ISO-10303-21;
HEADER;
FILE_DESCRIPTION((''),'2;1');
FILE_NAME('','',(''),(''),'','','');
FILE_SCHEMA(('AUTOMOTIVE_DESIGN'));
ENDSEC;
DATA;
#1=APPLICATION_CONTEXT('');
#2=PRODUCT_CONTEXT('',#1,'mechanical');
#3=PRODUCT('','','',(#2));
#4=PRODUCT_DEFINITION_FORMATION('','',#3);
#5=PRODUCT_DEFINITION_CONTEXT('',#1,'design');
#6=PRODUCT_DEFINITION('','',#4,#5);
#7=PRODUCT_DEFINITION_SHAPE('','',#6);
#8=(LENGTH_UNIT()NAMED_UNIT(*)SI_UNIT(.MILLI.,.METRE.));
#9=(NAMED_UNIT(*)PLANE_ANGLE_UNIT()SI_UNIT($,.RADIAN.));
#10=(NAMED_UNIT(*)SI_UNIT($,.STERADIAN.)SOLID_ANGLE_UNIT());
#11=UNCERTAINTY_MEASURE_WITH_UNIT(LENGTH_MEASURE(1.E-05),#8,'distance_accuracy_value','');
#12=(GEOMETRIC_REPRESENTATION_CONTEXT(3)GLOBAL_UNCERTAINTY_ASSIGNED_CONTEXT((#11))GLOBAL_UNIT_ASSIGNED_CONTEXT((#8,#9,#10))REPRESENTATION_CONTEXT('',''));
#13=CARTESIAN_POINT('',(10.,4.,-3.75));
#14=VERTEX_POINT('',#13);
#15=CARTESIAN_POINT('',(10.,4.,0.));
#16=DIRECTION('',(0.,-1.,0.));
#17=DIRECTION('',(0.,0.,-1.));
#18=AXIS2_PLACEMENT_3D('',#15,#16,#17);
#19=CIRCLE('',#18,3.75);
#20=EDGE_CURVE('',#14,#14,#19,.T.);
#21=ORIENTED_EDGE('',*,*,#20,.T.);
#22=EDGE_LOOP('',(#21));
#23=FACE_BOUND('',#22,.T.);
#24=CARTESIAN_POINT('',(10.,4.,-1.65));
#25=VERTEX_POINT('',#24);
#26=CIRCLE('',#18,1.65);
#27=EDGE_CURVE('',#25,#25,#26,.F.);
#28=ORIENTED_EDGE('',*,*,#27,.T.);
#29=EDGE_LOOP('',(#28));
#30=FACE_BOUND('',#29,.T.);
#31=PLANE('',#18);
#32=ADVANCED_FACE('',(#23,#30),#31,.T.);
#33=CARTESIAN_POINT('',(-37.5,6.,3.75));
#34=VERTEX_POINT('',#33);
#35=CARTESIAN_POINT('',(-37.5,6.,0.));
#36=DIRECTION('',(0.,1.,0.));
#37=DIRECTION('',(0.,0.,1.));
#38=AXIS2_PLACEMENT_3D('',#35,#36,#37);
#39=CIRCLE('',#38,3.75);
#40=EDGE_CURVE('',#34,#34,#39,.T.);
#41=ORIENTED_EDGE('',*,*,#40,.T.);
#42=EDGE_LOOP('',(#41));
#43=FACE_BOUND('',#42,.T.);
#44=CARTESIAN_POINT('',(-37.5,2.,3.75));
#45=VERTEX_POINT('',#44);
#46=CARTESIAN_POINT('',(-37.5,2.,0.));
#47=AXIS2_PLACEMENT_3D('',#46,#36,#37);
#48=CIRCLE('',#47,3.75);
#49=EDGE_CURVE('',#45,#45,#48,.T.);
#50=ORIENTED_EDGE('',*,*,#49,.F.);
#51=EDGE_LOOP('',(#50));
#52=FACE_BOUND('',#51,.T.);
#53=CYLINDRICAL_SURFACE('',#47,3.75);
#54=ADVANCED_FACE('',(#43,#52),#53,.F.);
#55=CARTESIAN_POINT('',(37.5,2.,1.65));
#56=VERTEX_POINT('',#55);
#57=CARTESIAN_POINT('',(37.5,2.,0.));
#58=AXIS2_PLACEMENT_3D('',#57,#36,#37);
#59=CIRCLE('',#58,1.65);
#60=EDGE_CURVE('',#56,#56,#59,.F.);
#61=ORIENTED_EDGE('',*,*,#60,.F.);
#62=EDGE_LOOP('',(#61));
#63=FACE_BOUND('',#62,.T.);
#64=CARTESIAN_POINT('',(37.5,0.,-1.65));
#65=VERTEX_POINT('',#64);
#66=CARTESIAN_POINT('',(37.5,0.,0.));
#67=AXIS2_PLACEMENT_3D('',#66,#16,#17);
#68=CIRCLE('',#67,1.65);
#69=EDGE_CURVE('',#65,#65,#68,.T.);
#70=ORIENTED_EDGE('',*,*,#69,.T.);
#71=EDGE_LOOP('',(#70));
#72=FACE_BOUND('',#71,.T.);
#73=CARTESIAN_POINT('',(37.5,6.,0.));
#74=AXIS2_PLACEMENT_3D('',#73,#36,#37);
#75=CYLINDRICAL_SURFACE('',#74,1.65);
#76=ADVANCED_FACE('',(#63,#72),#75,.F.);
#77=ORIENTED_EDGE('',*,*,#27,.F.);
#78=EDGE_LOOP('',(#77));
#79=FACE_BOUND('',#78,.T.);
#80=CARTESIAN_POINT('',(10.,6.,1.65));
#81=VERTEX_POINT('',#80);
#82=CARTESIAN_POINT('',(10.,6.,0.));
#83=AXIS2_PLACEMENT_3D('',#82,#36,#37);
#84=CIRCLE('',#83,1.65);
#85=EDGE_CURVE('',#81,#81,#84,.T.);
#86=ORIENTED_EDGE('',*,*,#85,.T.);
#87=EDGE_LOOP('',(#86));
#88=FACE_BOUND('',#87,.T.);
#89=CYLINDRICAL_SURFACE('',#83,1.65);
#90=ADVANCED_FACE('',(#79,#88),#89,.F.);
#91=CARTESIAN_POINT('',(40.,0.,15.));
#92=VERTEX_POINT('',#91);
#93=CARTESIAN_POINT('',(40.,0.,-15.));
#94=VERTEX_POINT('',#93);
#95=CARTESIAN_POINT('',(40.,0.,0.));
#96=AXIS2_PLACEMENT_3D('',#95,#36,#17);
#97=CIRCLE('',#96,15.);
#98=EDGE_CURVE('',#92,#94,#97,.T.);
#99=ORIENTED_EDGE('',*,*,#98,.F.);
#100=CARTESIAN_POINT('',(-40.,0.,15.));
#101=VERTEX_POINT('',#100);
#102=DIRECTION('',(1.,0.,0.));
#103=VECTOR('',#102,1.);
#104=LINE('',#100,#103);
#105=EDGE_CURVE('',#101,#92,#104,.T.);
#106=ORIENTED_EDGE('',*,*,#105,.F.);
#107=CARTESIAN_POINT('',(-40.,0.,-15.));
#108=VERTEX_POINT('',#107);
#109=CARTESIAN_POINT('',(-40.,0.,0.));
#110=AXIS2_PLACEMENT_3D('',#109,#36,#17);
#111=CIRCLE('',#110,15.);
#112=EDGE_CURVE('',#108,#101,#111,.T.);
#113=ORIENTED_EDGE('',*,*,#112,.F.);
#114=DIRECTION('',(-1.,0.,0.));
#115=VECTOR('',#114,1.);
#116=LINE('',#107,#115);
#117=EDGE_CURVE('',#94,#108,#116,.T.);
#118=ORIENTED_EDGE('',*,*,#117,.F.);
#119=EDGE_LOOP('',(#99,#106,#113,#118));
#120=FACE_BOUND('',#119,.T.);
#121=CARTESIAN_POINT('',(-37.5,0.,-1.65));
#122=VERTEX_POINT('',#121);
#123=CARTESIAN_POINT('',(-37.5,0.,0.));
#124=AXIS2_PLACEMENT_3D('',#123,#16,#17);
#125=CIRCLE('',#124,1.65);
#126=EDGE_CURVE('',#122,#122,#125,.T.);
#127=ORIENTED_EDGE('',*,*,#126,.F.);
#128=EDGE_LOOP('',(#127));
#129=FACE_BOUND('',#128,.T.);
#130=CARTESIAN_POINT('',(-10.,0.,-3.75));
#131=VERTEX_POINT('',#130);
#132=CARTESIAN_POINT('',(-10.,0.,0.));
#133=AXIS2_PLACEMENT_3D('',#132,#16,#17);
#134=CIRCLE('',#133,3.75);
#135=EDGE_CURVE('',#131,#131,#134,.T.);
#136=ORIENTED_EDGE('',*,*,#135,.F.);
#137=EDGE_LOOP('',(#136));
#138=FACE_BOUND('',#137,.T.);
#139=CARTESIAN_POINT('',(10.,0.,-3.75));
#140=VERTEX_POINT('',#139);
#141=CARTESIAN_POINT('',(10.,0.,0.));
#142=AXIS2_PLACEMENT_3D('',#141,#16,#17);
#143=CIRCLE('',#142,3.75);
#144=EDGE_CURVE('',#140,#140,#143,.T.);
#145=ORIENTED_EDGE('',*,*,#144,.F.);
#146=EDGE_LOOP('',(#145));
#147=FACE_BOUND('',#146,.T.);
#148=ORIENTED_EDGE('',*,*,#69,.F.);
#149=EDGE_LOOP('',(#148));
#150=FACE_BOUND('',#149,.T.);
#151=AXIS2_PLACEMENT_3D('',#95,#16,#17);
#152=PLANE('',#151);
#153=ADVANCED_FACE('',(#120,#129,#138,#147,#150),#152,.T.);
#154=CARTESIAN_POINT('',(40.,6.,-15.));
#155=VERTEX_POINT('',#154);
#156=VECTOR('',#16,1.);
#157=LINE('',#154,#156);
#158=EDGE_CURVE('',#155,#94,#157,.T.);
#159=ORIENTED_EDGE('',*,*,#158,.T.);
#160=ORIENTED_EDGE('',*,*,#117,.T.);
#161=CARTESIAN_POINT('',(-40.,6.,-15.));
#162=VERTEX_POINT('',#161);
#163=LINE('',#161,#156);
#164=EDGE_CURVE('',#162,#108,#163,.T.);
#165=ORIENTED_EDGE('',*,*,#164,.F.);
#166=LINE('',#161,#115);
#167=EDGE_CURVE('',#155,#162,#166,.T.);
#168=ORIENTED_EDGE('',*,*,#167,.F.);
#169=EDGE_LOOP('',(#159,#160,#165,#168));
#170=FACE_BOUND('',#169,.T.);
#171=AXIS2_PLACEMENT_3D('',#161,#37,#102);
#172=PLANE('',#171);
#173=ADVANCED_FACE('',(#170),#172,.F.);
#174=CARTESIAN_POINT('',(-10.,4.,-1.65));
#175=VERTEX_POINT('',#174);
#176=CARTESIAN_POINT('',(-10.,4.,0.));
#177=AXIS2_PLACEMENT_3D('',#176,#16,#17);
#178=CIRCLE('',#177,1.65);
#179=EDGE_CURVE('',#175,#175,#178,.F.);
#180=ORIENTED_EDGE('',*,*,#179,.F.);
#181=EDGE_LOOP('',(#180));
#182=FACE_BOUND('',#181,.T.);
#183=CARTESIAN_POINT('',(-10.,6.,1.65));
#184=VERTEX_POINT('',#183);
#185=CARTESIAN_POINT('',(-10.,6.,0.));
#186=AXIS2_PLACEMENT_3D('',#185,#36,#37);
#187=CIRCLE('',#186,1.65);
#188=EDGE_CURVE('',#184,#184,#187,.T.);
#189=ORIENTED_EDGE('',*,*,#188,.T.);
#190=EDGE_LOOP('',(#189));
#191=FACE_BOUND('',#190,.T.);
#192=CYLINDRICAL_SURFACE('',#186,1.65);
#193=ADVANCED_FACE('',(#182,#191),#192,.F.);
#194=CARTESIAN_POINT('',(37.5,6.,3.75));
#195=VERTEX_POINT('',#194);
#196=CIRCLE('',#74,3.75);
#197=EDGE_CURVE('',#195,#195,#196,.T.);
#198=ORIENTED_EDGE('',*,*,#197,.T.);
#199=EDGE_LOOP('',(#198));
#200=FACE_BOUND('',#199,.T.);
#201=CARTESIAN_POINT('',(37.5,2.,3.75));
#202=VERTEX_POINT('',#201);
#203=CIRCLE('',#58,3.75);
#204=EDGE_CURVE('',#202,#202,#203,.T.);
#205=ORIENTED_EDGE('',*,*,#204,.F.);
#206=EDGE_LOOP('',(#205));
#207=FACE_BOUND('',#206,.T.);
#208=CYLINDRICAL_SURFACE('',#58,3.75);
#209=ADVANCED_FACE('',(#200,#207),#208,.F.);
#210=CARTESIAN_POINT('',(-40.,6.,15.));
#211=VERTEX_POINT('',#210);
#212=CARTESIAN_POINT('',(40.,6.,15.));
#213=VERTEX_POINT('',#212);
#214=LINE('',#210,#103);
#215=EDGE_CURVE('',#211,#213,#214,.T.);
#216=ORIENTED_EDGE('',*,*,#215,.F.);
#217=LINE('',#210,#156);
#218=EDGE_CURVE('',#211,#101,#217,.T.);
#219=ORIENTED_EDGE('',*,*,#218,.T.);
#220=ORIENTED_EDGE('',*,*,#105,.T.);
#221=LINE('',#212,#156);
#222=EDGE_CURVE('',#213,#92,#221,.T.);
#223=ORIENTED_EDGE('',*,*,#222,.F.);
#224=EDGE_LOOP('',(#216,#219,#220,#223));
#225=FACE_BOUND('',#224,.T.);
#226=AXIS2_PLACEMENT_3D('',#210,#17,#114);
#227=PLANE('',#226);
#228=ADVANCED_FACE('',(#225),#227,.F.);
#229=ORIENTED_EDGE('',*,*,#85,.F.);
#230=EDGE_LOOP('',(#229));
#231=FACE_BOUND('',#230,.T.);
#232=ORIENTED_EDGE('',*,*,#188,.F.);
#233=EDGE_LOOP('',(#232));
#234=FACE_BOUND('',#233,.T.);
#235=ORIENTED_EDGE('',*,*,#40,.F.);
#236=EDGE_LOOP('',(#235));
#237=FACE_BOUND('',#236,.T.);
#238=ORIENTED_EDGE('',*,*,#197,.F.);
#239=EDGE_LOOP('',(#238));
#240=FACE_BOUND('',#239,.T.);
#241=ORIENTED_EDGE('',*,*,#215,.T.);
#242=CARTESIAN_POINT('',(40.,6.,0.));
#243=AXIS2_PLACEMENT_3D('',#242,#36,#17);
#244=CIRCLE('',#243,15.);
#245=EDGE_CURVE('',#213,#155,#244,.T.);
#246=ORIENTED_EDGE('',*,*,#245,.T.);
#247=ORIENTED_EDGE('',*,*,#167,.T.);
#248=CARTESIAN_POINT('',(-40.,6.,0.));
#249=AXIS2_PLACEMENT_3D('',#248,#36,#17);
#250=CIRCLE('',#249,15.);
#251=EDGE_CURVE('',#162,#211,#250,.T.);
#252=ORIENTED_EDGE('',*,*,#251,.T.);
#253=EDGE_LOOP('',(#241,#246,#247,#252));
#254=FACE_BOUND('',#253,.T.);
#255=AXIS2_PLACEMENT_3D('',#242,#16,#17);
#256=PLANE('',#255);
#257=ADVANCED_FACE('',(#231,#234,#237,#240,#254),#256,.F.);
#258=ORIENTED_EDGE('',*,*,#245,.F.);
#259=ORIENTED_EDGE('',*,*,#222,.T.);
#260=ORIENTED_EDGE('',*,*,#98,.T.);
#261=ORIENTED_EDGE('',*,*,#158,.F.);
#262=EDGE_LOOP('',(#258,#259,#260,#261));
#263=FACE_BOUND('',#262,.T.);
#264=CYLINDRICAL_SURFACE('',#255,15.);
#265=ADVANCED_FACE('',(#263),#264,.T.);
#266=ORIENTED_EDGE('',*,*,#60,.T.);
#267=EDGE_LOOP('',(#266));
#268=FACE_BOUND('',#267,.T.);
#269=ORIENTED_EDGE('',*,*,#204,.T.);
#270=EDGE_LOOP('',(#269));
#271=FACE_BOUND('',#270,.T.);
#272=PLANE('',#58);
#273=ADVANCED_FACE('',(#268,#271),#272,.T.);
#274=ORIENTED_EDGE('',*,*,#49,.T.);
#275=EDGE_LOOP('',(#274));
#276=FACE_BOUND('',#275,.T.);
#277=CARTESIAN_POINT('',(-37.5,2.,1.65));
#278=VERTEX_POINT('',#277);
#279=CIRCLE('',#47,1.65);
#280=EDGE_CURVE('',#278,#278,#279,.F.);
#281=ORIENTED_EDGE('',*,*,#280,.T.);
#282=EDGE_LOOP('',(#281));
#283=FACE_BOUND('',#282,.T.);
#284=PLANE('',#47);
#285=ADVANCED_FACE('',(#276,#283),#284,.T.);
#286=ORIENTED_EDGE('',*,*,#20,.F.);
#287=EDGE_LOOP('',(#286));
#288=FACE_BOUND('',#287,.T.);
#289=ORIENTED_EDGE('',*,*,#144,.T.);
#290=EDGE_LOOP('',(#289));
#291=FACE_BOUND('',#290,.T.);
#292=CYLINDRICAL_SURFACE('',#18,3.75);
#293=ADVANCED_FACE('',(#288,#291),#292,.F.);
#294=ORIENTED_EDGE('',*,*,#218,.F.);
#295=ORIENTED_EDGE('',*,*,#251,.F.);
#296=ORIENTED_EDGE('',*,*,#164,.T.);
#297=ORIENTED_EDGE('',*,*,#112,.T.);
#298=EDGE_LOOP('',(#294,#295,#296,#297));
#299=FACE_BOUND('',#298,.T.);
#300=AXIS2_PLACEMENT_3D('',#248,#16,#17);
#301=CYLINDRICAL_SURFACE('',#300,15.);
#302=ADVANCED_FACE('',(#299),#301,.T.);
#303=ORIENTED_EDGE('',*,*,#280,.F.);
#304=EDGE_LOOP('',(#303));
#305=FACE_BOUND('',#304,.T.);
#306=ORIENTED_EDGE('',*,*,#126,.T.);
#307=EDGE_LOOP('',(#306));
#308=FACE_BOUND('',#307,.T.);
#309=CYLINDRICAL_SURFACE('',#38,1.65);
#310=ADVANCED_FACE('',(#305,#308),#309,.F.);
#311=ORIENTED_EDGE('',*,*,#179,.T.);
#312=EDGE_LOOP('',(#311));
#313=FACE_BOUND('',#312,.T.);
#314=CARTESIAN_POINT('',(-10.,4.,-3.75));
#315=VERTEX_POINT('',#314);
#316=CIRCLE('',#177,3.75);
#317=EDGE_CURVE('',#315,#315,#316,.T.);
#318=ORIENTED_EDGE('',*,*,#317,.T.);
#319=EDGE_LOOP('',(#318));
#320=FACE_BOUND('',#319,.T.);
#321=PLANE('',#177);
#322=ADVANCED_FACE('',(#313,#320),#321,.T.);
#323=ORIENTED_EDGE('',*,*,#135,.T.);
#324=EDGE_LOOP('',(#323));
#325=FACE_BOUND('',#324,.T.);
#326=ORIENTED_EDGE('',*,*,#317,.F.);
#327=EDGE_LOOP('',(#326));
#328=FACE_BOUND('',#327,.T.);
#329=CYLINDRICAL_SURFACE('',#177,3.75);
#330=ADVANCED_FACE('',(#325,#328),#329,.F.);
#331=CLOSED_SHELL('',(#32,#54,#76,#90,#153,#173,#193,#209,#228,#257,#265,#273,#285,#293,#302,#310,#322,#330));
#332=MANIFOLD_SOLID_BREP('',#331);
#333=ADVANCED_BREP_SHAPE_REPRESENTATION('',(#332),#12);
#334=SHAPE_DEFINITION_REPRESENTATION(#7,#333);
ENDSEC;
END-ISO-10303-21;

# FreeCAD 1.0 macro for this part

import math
import FreeCAD as App
import Part
import Sketcher
from FreeCAD import Vector
Q = App.Units.Quantity


def add_polygon(sketch, points):
    """Adds a closed chain of lines whose ends are joined by coincident constraints."""
    first, n = sketch.GeometryCount, len(points)
    for a, b in zip(points, points[1:] + points[:1]):
        sketch.addGeometry(Part.LineSegment(App.Vector(*a, 0), App.Vector(*b, 0)), False)
    for i in range(n):
        sketch.addConstraint(Sketcher.Constraint("Coincident", first + i, 2, first + (i + 1) % n, 1))

doc = App.newDocument("Part")
body = doc.addObject("PartDesign::Body", "Body")

sketch1 = body.newObject("Sketcher::SketchObject", "Sketch")
sketch1.AttachmentSupport = (doc.getObject("XZ_Plane"), [""])
sketch1.MapMode = "FlatFace"
sketch1.addGeometry(Part.LineSegment(Vector(40, -15, 0), Vector(-40, -15, 0)), False)
sketch1.addGeometry(Part.ArcOfCircle(Part.Circle(Vector(-40, 0, 0), Vector(0, 0, 1), 15), math.radians(90), math.radians(270)), False)
sketch1.addGeometry(Part.LineSegment(Vector(-40, 15, 0), Vector(40, 15, 0)), False)
sketch1.addGeometry(Part.ArcOfCircle(Part.Circle(Vector(40, 0, 0), Vector(0, 0, 1), 15), math.radians(-90), math.radians(90)), False)
sketch1.addConstraint(Sketcher.Constraint("Tangent", 0, 2, 1, 2))
sketch1.addConstraint(Sketcher.Constraint("Tangent", 1, 1, 2, 1))
sketch1.addConstraint(Sketcher.Constraint("Tangent", 2, 2, 3, 2))
sketch1.addConstraint(Sketcher.Constraint("Tangent", 3, 1, 0, 1))
sketch1.addConstraint(Sketcher.Constraint("Horizontal", 0))
sketch1.addConstraint(Sketcher.Constraint("Horizontal", 2))
sketch1.addConstraint(Sketcher.Constraint("Symmetric", 1, 3, 3, 3, -1, 1))
sketch1.addConstraint(Sketcher.Constraint("Radius", 1, Q("15 mm")))
sketch1.addConstraint(Sketcher.Constraint("DistanceX", 0, 2, 0, 1, Q("80 mm")))
pad1 = body.newObject("PartDesign::Pad", "Pad")
pad1.Profile = sketch1
pad1.Length = 6
pad1.Reversed = True

sketch2 = body.newObject("Sketcher::SketchObject", "Sketch001")
sketch2.AttachmentSupport = (doc.getObject("YZ_Plane"), [""])
sketch2.MapMode = "FlatFace"
sketch2.AttachmentOffset = App.Placement(Vector(0, 0, 37.5), App.Rotation())
add_polygon(sketch2, [(-6.49142, 0), (6, 0), (6, 1.65), (-5.5, 1.65)])
sketch2.addConstraint(Sketcher.Constraint("Horizontal", 0))
sketch2.addConstraint(Sketcher.Constraint("Vertical", 1))
sketch2.addConstraint(Sketcher.Constraint("Horizontal", 2))
sketch2.addConstraint(Sketcher.Constraint("PointOnObject", 0, 2, -1))
sketch2.addConstraint(Sketcher.Constraint("Angle", 3, Q("-121 deg")))
sketch2.addConstraint(Sketcher.Constraint("DistanceX", 2, 2, 2, 1, Q("11.5 mm")))
sketch2.addConstraint(Sketcher.Constraint("DistanceX", -1, 1, 0, 2, Q("6 mm")))
sketch2.addConstraint(Sketcher.Constraint("DistanceY", 1, 1, 1, 2, Q("1.65 mm")))
groove = body.newObject("PartDesign::Groove", "Groove")
groove.Profile = sketch2
groove.ReferenceAxis = (sketch2, ["H_Axis"])
groove.Angle = 360

sketch3 = body.newObject("Sketcher::SketchObject", "Sketch002")
sketch3.AttachmentSupport = (doc.getObject("XZ_Plane"), [""])
sketch3.MapMode = "FlatFace"
sketch3.AttachmentOffset = App.Placement(Vector(0, 0, -6), App.Rotation())
sketch3.addGeometry(Part.Circle(Vector(10, 0, 0), Vector(0, 0, 1), 1.65), False)
sketch3.addConstraint(Sketcher.Constraint("PointOnObject", 0, 3, -1))
sketch3.addConstraint(Sketcher.Constraint("Diameter", 0, Q("3.3 mm")))
sketch3.addConstraint(Sketcher.Constraint("DistanceX", -1, 1, 0, 3, Q("10 mm")))
doc.recompute()
hole = body.newObject("PartDesign::Hole", "Hole")
hole.Profile = sketch3
hole.ThreadType = "None"
hole.Diameter = 3.3
hole.DepthType = "ThroughAll"
hole.Reversed = True
doc.recompute()

linearpattern = body.newObject("PartDesign::LinearPattern", "LinearPattern")
linearpattern.Originals = [groove]
linearpattern.Direction = (doc.getObject("X_Axis"), [""])
linearpattern.Mode = "offset"
linearpattern.Offset = 75
linearpattern.Occurrences = 2
linearpattern.Reversed = True
body.Tip = linearpattern
doc.recompute()

linearpattern2 = body.newObject("PartDesign::LinearPattern", "LinearPattern001")
linearpattern2.Originals = [hole]
linearpattern2.Direction = (doc.getObject("X_Axis"), [""])
linearpattern2.Mode = "offset"
linearpattern2.Offset = 20
linearpattern2.Occurrences = 2
linearpattern2.Reversed = True
body.Tip = linearpattern2

sketch4 = body.newObject("Sketcher::SketchObject", "Sketch003")
sketch4.AttachmentSupport = (doc.getObject("XZ_Plane"), [""])
sketch4.MapMode = "FlatFace"
sketch4.AttachmentOffset = App.Placement(Vector(0, 0, -6), App.Rotation())
sketch4.addGeometry(Part.Circle(Vector(37.5, 0, 0), Vector(0, 0, 1), 3.75), False)
sketch4.addGeometry(Part.Circle(Vector(-37.5, 0, 0), Vector(0, 0, 1), 3.75), False)
sketch4.addConstraint(Sketcher.Constraint("Equal", 0, 1))
sketch4.addConstraint(Sketcher.Constraint("Symmetric", 0, 3, 1, 3, -1, 1))
sketch4.addConstraint(Sketcher.Constraint("PointOnObject", 0, 3, -1))
sketch4.addConstraint(Sketcher.Constraint("Diameter", 0, Q("7.5 mm")))
sketch4.addConstraint(Sketcher.Constraint("DistanceX", 1, 3, 0, 3, Q("75 mm")))
pocket1 = body.newObject("PartDesign::Pocket", "Pocket")
pocket1.Profile = sketch4
pocket1.Length = 4
pocket1.Reversed = True

sketch5 = body.newObject("Sketcher::SketchObject", "Sketch004")
sketch5.AttachmentSupport = (doc.getObject("XZ_Plane"), [""])
sketch5.MapMode = "FlatFace"
sketch5.addGeometry(Part.Circle(Vector(-10, 0, 0), Vector(0, 0, 1), 3.75), False)
sketch5.addGeometry(Part.Circle(Vector(10, 0, 0), Vector(0, 0, 1), 3.75), False)
sketch5.addConstraint(Sketcher.Constraint("Equal", 0, 1))
sketch5.addConstraint(Sketcher.Constraint("Symmetric", 0, 3, 1, 3, -1, 1))
sketch5.addConstraint(Sketcher.Constraint("PointOnObject", 0, 3, -1))
sketch5.addConstraint(Sketcher.Constraint("Diameter", 0, Q("7.5 mm")))
sketch5.addConstraint(Sketcher.Constraint("DistanceX", 0, 3, -1, 1, Q("10 mm")))
pocket2 = body.newObject("PartDesign::Pocket", "Pocket001")
pocket2.Profile = sketch5
pocket2.Length = 4

doc.recompute()
